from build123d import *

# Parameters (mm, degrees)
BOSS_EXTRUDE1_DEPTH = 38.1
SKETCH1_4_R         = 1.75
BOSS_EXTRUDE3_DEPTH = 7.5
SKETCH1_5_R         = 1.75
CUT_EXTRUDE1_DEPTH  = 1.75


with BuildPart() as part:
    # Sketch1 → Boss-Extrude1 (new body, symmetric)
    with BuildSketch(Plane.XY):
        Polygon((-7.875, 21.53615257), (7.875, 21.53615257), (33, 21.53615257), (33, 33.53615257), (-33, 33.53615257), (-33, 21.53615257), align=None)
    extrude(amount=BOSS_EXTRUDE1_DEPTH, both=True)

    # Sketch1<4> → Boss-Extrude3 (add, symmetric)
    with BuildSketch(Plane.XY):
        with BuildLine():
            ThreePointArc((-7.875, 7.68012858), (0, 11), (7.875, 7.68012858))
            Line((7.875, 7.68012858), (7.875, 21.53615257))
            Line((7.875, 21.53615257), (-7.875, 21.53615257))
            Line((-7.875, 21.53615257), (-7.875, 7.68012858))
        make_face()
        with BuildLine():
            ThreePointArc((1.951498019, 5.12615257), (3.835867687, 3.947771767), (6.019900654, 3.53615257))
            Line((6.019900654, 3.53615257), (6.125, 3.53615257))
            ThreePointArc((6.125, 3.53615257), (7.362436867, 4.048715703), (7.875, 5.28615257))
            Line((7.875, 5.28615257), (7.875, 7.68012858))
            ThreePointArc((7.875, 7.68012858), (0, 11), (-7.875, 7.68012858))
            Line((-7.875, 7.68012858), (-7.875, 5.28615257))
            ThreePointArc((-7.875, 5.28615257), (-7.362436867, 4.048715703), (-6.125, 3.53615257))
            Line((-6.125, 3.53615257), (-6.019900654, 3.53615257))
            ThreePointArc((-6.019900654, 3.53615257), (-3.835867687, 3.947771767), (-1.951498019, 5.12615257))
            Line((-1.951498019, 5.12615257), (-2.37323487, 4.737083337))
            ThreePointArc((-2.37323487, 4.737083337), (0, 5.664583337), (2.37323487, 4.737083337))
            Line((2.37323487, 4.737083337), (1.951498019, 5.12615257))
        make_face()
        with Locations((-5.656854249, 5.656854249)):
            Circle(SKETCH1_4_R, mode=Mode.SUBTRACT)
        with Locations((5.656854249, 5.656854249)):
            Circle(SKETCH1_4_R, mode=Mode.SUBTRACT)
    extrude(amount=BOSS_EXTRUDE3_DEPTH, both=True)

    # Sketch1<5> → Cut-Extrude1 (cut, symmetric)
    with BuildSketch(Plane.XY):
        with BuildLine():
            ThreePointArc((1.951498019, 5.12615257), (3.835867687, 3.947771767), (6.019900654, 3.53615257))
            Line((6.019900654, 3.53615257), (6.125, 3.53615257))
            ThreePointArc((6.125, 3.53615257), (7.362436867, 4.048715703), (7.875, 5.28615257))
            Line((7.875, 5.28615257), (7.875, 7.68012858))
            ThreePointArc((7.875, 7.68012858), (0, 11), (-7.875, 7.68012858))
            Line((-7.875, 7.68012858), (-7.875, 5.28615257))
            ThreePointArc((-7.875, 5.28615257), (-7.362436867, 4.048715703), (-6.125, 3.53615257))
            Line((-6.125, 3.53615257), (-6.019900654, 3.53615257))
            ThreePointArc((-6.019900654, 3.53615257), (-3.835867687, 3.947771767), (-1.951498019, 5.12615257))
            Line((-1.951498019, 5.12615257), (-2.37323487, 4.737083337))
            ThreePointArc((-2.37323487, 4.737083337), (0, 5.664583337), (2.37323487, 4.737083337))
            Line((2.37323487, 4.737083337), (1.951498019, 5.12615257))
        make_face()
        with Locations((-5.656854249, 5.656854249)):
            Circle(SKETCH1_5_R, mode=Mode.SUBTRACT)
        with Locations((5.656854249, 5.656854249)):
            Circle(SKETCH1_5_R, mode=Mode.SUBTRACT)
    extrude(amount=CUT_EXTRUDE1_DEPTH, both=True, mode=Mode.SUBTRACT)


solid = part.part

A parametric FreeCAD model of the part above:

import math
import FreeCAD as App
import Part
import Sketcher
from FreeCAD import Vector
Q = App.Units.Quantity


def add_polygon(sketch, points):
    """Adds a closed chain of lines whose ends are joined by coincident constraints."""
    first, n = sketch.GeometryCount, len(points)
    for a, b in zip(points, points[1:] + points[:1]):
        sketch.addGeometry(Part.LineSegment(App.Vector(*a, 0), App.Vector(*b, 0)), False)
    for i in range(n):
        sketch.addConstraint(Sketcher.Constraint("Coincident", first + i, 2, first + (i + 1) % n, 1))

doc = App.newDocument("Part")
params = doc.addObject("Spreadsheet::Sheet", "Params")
for row, (alias, value) in enumerate([
    ("sketch1_width", "66 mm"),
    ("sketch1_height", "12 mm"),
    ("pad1_length", "76.2 mm"),
    ("sketch2_radius", "6 mm"),
    ("sketch2_diameter", "3.5 mm"),
    ("sketch2_radius2", "3.5 mm"),
    ("sketch2_width", "15.75 mm"),
    ("pad2_length", "15 mm"),
    ("sketch3_radius", "6 mm"),
    ("sketch3_radius2", "11 mm"),
    ("sketch3_diameter", "3.5 mm"),
    ("sketch3_radius3", "3.5 mm"),
    ("pocket1_length", "3.5 mm"),
], start=1):
    params.set(f"A{row}", alias)
    params.set(f"B{row}", "=" + value)
    params.setAlias(f"B{row}", alias)

body = doc.addObject("PartDesign::Body", "Body")

sketch1 = body.newObject("Sketcher::SketchObject", "Sketch")
sketch1.AttachmentSupport = (doc.getObject("XY_Plane"), [""])
sketch1.MapMode = "FlatFace"
add_polygon(sketch1, [(33, 22), (33, 34), (-33, 34), (-33, 22)])
sketch1.addConstraint(Sketcher.Constraint("Vertical", 0))
sketch1.addConstraint(Sketcher.Constraint("Horizontal", 1))
sketch1.addConstraint(Sketcher.Constraint("Vertical", 2))
sketch1.addConstraint(Sketcher.Constraint("Horizontal", 3))
sketch1.addConstraint(Sketcher.Constraint("DistanceX", 1, 2, 1, 1, Q("66 mm")))
sketch1.addConstraint(Sketcher.Constraint("DistanceY", 0, 1, 0, 2, Q("12 mm")))
sketch1.addConstraint(Sketcher.Constraint("DistanceX", -1, 1, 0, 2, Q("33 mm")))
sketch1.addConstraint(Sketcher.Constraint("DistanceY", -1, 1, 0, 2, Q("33.536153 mm")))
sketch1.setExpression("Constraints[8]", "Params.sketch1_width")
sketch1.setExpression("Constraints[9]", "Params.sketch1_height")
pad1 = body.newObject("PartDesign::Pad", "Pad")
pad1.Profile = sketch1
pad1.setExpression("Length", "Params.pad1_length")
pad1.Midplane = True

sketch2 = body.newObject("Sketcher::SketchObject", "Sketch001")
sketch2.AttachmentSupport = (doc.getObject("XY_Plane"), [""])
sketch2.MapMode = "FlatFace"
sketch2.addGeometry(Part.LineSegment(Vector(7.88, 21.54, 0), Vector(-7.88, 21.54, 0)), False)
sketch2.addGeometry(Part.LineSegment(Vector(-7.88, 21.54, 0), Vector(-7.88, 5.29, 0)), False)
sketch2.addGeometry(Part.ArcOfCircle(Part.Circle(Vector(-6.12, 5.29, 0), Vector(0, 0, 1), 1.75), math.radians(180), math.radians(270)), False)
sketch2.addGeometry(Part.LineSegment(Vector(-6.12, 3.54, 0), Vector(-6.02, 3.54, 0)), False)
sketch2.addGeometry(Part.ArcOfCircle(Part.Circle(Vector(-6.02, 9.54, 0), Vector(0, 0, 1), 6), math.radians(-90), math.radians(-47)), False)
sketch2.addGeometry(Part.LineSegment(Vector(-1.95, 5.13, 0), Vector(-2.37, 4.74, 0)), False)
sketch2.addGeometry(Part.ArcOfCircle(Part.Circle(Vector(0, 2.16, 0), Vector(0, 0, 1), 3.5), math.radians(47), math.radians(133)), False)
sketch2.addGeometry(Part.LineSegment(Vector(2.37, 4.74, 0), Vector(1.95, 5.13, 0)), False)
sketch2.addGeometry(Part.ArcOfCircle(Part.Circle(Vector(6.02, 9.54, 0), Vector(0, 0, 1), 6), math.radians(-133), math.radians(-90)), False)
sketch2.addGeometry(Part.LineSegment(Vector(6.02, 3.54, 0), Vector(6.12, 3.54, 0)), False)
sketch2.addGeometry(Part.ArcOfCircle(Part.Circle(Vector(6.12, 5.29, 0), Vector(0, 0, 1), 1.75), math.radians(-90), math.radians(0)), False)
sketch2.addGeometry(Part.LineSegment(Vector(7.88, 5.29, 0), Vector(7.88, 21.54, 0)), False)
sketch2.addGeometry(Part.Circle(Vector(-5.66, 5.66, 0), Vector(0, 0, 1), 1.75), False)
sketch2.addGeometry(Part.Circle(Vector(5.66, 5.66, 0), Vector(0, 0, 1), 1.75), False)
sketch2.addConstraint(Sketcher.Constraint("Coincident", 0, 2, 1, 1))
sketch2.addConstraint(Sketcher.Constraint("Tangent", 1, 2, 2, 1))
sketch2.addConstraint(Sketcher.Constraint("Tangent", 2, 2, 3, 1))
sketch2.addConstraint(Sketcher.Constraint("Tangent", 3, 2, 4, 1))
sketch2.addConstraint(Sketcher.Constraint("Tangent", 4, 2, 5, 1))
sketch2.addConstraint(Sketcher.Constraint("Tangent", 5, 2, 6, 2))
sketch2.addConstraint(Sketcher.Constraint("Tangent", 6, 1, 7, 1))
sketch2.addConstraint(Sketcher.Constraint("Tangent", 7, 2, 8, 1))
sketch2.addConstraint(Sketcher.Constraint("Tangent", 8, 2, 9, 1))
sketch2.addConstraint(Sketcher.Constraint("Tangent", 9, 2, 10, 1))
sketch2.addConstraint(Sketcher.Constraint("Tangent", 10, 2, 11, 1))
sketch2.addConstraint(Sketcher.Constraint("Coincident", 11, 2, 0, 1))
sketch2.addConstraint(Sketcher.Constraint("Horizontal", 0))
sketch2.addConstraint(Sketcher.Constraint("Vertical", 1))
sketch2.addConstraint(Sketcher.Constraint("Horizontal", 3))
sketch2.addConstraint(Sketcher.Constraint("Horizontal", 9))
sketch2.addConstraint(Sketcher.Constraint("Vertical", 11))
sketch2.addConstraint(Sketcher.Constraint("Equal", 4, 8))
sketch2.addConstraint(Sketcher.Constraint("Equal", 2, 10))
sketch2.addConstraint(Sketcher.Constraint("Equal", 10, 12))
sketch2.addConstraint(Sketcher.Constraint("Equal", 12, 13))
sketch2.addConstraint(Sketcher.Constraint("Symmetric", 4, 3, 8, 3, -2))
sketch2.addConstraint(Sketcher.Constraint("Symmetric", 12, 3, 13, 3, -2))
sketch2.addConstraint(Sketcher.Constraint("PointOnObject", 6, 3, -2))
sketch2.addConstraint(Sketcher.Constraint("Equal", 3, 9))
sketch2.addConstraint(Sketcher.Constraint("Radius", 4, Q("6 mm")))
sketch2.addConstraint(Sketcher.Constraint("Diameter", 12, Q("3.5 mm")))
sketch2.addConstraint(Sketcher.Constraint("Radius", 6, Q("3.5 mm")))
sketch2.addConstraint(Sketcher.Constraint("DistanceY", 4, 3, 0, 2, Q("12 mm")))
sketch2.addConstraint(Sketcher.Constraint("DistanceX", 0, 2, 0, 1, Q("15.75 mm")))
sketch2.addConstraint(Sketcher.Constraint("DistanceY", 4, 2, 2, 3, Q("0.16 mm")))
sketch2.addConstraint(Sketcher.Constraint("DistanceX", 3, 1, 3, 2, Q("0.105099 mm")))
sketch2.addConstraint(Sketcher.Constraint("DistanceY", 2, 3, 12, 3, Q("0.370702 mm")))
sketch2.addConstraint(Sketcher.Constraint("DistanceX", 12, 3, 13, 3, Q("11.313708 mm")))
sketch2.addConstraint(Sketcher.Constraint("DistanceY", -1, 1, 2, 3, Q("5.286153 mm")))
sketch2.setExpression("Constraints[25]", "Params.sketch2_radius")
sketch2.setExpression("Constraints[26]", "Params.sketch2_diameter")
sketch2.setExpression("Constraints[27]", "Params.sketch2_radius2")
sketch2.setExpression("Constraints[29]", "Params.sketch2_width")
pad2 = body.newObject("PartDesign::Pad", "Pad001")
pad2.Profile = sketch2
pad2.setExpression("Length", "Params.pad2_length")
pad2.Midplane = True

sketch3 = body.newObject("Sketcher::SketchObject", "Sketch002")
sketch3.AttachmentSupport = (doc.getObject("XY_Plane"), [""])
sketch3.MapMode = "FlatFace"
sketch3.addGeometry(Part.ArcOfCircle(Part.Circle(Vector(6.02, 9.54, 0), Vector(0, 0, 1), 6), math.radians(-133), math.radians(-90)), False)
sketch3.addGeometry(Part.LineSegment(Vector(6.02, 3.54, 0), Vector(6.12, 3.54, 0)), False)
sketch3.addGeometry(Part.ArcOfCircle(Part.Circle(Vector(6.12, 5.29, 0), Vector(0, 0, 1), 1.75), math.radians(-90), math.radians(0)), False)
sketch3.addGeometry(Part.LineSegment(Vector(7.88, 5.29, 0), Vector(7.88, 7.68, 0)), False)
sketch3.addGeometry(Part.ArcOfCircle(Part.Circle(Vector(0, 0, 0), Vector(0, 0, 1), 11), math.radians(44), math.radians(136)), False)
sketch3.addGeometry(Part.LineSegment(Vector(-7.88, 7.68, 0), Vector(-7.88, 5.29, 0)), False)
sketch3.addGeometry(Part.ArcOfCircle(Part.Circle(Vector(-6.12, 5.29, 0), Vector(0, 0, 1), 1.75), math.radians(180), math.radians(270)), False)
sketch3.addGeometry(Part.LineSegment(Vector(-6.12, 3.54, 0), Vector(-6.02, 3.54, 0)), False)
sketch3.addGeometry(Part.ArcOfCircle(Part.Circle(Vector(-6.02, 9.54, 0), Vector(0, 0, 1), 6), math.radians(-90), math.radians(-47)), False)
sketch3.addGeometry(Part.LineSegment(Vector(-1.95, 5.13, 0), Vector(-2.37, 4.74, 0)), False)
sketch3.addGeometry(Part.ArcOfCircle(Part.Circle(Vector(0, 2.16, 0), Vector(0, 0, 1), 3.5), math.radians(47), math.radians(133)), False)
sketch3.addGeometry(Part.LineSegment(Vector(2.37, 4.74, 0), Vector(1.95, 5.13, 0)), False)
sketch3.addGeometry(Part.Circle(Vector(-5.66, 5.66, 0), Vector(0, 0, 1), 1.75), False)
sketch3.addGeometry(Part.Circle(Vector(5.66, 5.66, 0), Vector(0, 0, 1), 1.75), False)
sketch3.addConstraint(Sketcher.Constraint("Tangent", 0, 2, 1, 1))
sketch3.addConstraint(Sketcher.Constraint("Tangent", 1, 2, 2, 1))
sketch3.addConstraint(Sketcher.Constraint("Tangent", 2, 2, 3, 1))
sketch3.addConstraint(Sketcher.Constraint("Coincident", 3, 2, 4, 1))
sketch3.addConstraint(Sketcher.Constraint("Coincident", 4, 2, 5, 1))
sketch3.addConstraint(Sketcher.Constraint("Tangent", 5, 2, 6, 1))
sketch3.addConstraint(Sketcher.Constraint("Tangent", 6, 2, 7, 1))
sketch3.addConstraint(Sketcher.Constraint("Tangent", 7, 2, 8, 1))
sketch3.addConstraint(Sketcher.Constraint("Tangent", 8, 2, 9, 1))
sketch3.addConstraint(Sketcher.Constraint("Tangent", 9, 2, 10, 2))
sketch3.addConstraint(Sketcher.Constraint("Tangent", 10, 1, 11, 1))
sketch3.addConstraint(Sketcher.Constraint("Tangent", 11, 2, 0, 1))
sketch3.addConstraint(Sketcher.Constraint("Horizontal", 1))
sketch3.addConstraint(Sketcher.Constraint("Vertical", 3))
sketch3.addConstraint(Sketcher.Constraint("Vertical", 5))
sketch3.addConstraint(Sketcher.Constraint("Horizontal", 7))
sketch3.addConstraint(Sketcher.Constraint("Coincident", 4, 3, -1, 1))
sketch3.addConstraint(Sketcher.Constraint("Equal", 2, 6))
sketch3.addConstraint(Sketcher.Constraint("Equal", 0, 8))
sketch3.addConstraint(Sketcher.Constraint("Equal", 6, 12))
sketch3.addConstraint(Sketcher.Constraint("Equal", 12, 13))
sketch3.addConstraint(Sketcher.Constraint("Symmetric", 2, 3, 6, 3, -2))
sketch3.addConstraint(Sketcher.Constraint("Symmetric", 12, 3, 13, 3, -2))
sketch3.addConstraint(Sketcher.Constraint("Symmetric", 9, 2, 10, 1, -2))
sketch3.addConstraint(Sketcher.Constraint("Radius", 0, Q("6 mm")))
sketch3.addConstraint(Sketcher.Constraint("Radius", 4, Q("11 mm")))
sketch3.addConstraint(Sketcher.Constraint("Diameter", 12, Q("3.5 mm")))
sketch3.addConstraint(Sketcher.Constraint("Radius", 10, Q("3.5 mm")))
sketch3.addConstraint(Sketcher.Constraint("DistanceX", 6, 3, 2, 3, Q("12.25 mm")))
sketch3.addConstraint(Sketcher.Constraint("DistanceY", 8, 2, 6, 3, Q("0.16 mm")))
sketch3.addConstraint(Sketcher.Constraint("DistanceX", 1, 1, 1, 2, Q("0.105099 mm")))
sketch3.addConstraint(Sketcher.Constraint("DistanceY", 6, 3, 12, 3, Q("0.370702 mm")))
sketch3.addConstraint(Sketcher.Constraint("DistanceY", 3, 1, 3, 2, Q("2.393976 mm")))
sketch3.addConstraint(Sketcher.Constraint("DistanceX", 12, 3, 13, 3, Q("11.313708 mm")))
sketch3.setExpression("Constraints[24]", "Params.sketch3_radius")
sketch3.setExpression("Constraints[25]", "Params.sketch3_radius2")
sketch3.setExpression("Constraints[26]", "Params.sketch3_diameter")
sketch3.setExpression("Constraints[27]", "Params.sketch3_radius3")
pocket1 = body.newObject("PartDesign::Pocket", "Pocket")
pocket1.Profile = sketch3
pocket1.setExpression("Length", "Params.pocket1_length")
pocket1.Midplane = True

doc.recompute()
